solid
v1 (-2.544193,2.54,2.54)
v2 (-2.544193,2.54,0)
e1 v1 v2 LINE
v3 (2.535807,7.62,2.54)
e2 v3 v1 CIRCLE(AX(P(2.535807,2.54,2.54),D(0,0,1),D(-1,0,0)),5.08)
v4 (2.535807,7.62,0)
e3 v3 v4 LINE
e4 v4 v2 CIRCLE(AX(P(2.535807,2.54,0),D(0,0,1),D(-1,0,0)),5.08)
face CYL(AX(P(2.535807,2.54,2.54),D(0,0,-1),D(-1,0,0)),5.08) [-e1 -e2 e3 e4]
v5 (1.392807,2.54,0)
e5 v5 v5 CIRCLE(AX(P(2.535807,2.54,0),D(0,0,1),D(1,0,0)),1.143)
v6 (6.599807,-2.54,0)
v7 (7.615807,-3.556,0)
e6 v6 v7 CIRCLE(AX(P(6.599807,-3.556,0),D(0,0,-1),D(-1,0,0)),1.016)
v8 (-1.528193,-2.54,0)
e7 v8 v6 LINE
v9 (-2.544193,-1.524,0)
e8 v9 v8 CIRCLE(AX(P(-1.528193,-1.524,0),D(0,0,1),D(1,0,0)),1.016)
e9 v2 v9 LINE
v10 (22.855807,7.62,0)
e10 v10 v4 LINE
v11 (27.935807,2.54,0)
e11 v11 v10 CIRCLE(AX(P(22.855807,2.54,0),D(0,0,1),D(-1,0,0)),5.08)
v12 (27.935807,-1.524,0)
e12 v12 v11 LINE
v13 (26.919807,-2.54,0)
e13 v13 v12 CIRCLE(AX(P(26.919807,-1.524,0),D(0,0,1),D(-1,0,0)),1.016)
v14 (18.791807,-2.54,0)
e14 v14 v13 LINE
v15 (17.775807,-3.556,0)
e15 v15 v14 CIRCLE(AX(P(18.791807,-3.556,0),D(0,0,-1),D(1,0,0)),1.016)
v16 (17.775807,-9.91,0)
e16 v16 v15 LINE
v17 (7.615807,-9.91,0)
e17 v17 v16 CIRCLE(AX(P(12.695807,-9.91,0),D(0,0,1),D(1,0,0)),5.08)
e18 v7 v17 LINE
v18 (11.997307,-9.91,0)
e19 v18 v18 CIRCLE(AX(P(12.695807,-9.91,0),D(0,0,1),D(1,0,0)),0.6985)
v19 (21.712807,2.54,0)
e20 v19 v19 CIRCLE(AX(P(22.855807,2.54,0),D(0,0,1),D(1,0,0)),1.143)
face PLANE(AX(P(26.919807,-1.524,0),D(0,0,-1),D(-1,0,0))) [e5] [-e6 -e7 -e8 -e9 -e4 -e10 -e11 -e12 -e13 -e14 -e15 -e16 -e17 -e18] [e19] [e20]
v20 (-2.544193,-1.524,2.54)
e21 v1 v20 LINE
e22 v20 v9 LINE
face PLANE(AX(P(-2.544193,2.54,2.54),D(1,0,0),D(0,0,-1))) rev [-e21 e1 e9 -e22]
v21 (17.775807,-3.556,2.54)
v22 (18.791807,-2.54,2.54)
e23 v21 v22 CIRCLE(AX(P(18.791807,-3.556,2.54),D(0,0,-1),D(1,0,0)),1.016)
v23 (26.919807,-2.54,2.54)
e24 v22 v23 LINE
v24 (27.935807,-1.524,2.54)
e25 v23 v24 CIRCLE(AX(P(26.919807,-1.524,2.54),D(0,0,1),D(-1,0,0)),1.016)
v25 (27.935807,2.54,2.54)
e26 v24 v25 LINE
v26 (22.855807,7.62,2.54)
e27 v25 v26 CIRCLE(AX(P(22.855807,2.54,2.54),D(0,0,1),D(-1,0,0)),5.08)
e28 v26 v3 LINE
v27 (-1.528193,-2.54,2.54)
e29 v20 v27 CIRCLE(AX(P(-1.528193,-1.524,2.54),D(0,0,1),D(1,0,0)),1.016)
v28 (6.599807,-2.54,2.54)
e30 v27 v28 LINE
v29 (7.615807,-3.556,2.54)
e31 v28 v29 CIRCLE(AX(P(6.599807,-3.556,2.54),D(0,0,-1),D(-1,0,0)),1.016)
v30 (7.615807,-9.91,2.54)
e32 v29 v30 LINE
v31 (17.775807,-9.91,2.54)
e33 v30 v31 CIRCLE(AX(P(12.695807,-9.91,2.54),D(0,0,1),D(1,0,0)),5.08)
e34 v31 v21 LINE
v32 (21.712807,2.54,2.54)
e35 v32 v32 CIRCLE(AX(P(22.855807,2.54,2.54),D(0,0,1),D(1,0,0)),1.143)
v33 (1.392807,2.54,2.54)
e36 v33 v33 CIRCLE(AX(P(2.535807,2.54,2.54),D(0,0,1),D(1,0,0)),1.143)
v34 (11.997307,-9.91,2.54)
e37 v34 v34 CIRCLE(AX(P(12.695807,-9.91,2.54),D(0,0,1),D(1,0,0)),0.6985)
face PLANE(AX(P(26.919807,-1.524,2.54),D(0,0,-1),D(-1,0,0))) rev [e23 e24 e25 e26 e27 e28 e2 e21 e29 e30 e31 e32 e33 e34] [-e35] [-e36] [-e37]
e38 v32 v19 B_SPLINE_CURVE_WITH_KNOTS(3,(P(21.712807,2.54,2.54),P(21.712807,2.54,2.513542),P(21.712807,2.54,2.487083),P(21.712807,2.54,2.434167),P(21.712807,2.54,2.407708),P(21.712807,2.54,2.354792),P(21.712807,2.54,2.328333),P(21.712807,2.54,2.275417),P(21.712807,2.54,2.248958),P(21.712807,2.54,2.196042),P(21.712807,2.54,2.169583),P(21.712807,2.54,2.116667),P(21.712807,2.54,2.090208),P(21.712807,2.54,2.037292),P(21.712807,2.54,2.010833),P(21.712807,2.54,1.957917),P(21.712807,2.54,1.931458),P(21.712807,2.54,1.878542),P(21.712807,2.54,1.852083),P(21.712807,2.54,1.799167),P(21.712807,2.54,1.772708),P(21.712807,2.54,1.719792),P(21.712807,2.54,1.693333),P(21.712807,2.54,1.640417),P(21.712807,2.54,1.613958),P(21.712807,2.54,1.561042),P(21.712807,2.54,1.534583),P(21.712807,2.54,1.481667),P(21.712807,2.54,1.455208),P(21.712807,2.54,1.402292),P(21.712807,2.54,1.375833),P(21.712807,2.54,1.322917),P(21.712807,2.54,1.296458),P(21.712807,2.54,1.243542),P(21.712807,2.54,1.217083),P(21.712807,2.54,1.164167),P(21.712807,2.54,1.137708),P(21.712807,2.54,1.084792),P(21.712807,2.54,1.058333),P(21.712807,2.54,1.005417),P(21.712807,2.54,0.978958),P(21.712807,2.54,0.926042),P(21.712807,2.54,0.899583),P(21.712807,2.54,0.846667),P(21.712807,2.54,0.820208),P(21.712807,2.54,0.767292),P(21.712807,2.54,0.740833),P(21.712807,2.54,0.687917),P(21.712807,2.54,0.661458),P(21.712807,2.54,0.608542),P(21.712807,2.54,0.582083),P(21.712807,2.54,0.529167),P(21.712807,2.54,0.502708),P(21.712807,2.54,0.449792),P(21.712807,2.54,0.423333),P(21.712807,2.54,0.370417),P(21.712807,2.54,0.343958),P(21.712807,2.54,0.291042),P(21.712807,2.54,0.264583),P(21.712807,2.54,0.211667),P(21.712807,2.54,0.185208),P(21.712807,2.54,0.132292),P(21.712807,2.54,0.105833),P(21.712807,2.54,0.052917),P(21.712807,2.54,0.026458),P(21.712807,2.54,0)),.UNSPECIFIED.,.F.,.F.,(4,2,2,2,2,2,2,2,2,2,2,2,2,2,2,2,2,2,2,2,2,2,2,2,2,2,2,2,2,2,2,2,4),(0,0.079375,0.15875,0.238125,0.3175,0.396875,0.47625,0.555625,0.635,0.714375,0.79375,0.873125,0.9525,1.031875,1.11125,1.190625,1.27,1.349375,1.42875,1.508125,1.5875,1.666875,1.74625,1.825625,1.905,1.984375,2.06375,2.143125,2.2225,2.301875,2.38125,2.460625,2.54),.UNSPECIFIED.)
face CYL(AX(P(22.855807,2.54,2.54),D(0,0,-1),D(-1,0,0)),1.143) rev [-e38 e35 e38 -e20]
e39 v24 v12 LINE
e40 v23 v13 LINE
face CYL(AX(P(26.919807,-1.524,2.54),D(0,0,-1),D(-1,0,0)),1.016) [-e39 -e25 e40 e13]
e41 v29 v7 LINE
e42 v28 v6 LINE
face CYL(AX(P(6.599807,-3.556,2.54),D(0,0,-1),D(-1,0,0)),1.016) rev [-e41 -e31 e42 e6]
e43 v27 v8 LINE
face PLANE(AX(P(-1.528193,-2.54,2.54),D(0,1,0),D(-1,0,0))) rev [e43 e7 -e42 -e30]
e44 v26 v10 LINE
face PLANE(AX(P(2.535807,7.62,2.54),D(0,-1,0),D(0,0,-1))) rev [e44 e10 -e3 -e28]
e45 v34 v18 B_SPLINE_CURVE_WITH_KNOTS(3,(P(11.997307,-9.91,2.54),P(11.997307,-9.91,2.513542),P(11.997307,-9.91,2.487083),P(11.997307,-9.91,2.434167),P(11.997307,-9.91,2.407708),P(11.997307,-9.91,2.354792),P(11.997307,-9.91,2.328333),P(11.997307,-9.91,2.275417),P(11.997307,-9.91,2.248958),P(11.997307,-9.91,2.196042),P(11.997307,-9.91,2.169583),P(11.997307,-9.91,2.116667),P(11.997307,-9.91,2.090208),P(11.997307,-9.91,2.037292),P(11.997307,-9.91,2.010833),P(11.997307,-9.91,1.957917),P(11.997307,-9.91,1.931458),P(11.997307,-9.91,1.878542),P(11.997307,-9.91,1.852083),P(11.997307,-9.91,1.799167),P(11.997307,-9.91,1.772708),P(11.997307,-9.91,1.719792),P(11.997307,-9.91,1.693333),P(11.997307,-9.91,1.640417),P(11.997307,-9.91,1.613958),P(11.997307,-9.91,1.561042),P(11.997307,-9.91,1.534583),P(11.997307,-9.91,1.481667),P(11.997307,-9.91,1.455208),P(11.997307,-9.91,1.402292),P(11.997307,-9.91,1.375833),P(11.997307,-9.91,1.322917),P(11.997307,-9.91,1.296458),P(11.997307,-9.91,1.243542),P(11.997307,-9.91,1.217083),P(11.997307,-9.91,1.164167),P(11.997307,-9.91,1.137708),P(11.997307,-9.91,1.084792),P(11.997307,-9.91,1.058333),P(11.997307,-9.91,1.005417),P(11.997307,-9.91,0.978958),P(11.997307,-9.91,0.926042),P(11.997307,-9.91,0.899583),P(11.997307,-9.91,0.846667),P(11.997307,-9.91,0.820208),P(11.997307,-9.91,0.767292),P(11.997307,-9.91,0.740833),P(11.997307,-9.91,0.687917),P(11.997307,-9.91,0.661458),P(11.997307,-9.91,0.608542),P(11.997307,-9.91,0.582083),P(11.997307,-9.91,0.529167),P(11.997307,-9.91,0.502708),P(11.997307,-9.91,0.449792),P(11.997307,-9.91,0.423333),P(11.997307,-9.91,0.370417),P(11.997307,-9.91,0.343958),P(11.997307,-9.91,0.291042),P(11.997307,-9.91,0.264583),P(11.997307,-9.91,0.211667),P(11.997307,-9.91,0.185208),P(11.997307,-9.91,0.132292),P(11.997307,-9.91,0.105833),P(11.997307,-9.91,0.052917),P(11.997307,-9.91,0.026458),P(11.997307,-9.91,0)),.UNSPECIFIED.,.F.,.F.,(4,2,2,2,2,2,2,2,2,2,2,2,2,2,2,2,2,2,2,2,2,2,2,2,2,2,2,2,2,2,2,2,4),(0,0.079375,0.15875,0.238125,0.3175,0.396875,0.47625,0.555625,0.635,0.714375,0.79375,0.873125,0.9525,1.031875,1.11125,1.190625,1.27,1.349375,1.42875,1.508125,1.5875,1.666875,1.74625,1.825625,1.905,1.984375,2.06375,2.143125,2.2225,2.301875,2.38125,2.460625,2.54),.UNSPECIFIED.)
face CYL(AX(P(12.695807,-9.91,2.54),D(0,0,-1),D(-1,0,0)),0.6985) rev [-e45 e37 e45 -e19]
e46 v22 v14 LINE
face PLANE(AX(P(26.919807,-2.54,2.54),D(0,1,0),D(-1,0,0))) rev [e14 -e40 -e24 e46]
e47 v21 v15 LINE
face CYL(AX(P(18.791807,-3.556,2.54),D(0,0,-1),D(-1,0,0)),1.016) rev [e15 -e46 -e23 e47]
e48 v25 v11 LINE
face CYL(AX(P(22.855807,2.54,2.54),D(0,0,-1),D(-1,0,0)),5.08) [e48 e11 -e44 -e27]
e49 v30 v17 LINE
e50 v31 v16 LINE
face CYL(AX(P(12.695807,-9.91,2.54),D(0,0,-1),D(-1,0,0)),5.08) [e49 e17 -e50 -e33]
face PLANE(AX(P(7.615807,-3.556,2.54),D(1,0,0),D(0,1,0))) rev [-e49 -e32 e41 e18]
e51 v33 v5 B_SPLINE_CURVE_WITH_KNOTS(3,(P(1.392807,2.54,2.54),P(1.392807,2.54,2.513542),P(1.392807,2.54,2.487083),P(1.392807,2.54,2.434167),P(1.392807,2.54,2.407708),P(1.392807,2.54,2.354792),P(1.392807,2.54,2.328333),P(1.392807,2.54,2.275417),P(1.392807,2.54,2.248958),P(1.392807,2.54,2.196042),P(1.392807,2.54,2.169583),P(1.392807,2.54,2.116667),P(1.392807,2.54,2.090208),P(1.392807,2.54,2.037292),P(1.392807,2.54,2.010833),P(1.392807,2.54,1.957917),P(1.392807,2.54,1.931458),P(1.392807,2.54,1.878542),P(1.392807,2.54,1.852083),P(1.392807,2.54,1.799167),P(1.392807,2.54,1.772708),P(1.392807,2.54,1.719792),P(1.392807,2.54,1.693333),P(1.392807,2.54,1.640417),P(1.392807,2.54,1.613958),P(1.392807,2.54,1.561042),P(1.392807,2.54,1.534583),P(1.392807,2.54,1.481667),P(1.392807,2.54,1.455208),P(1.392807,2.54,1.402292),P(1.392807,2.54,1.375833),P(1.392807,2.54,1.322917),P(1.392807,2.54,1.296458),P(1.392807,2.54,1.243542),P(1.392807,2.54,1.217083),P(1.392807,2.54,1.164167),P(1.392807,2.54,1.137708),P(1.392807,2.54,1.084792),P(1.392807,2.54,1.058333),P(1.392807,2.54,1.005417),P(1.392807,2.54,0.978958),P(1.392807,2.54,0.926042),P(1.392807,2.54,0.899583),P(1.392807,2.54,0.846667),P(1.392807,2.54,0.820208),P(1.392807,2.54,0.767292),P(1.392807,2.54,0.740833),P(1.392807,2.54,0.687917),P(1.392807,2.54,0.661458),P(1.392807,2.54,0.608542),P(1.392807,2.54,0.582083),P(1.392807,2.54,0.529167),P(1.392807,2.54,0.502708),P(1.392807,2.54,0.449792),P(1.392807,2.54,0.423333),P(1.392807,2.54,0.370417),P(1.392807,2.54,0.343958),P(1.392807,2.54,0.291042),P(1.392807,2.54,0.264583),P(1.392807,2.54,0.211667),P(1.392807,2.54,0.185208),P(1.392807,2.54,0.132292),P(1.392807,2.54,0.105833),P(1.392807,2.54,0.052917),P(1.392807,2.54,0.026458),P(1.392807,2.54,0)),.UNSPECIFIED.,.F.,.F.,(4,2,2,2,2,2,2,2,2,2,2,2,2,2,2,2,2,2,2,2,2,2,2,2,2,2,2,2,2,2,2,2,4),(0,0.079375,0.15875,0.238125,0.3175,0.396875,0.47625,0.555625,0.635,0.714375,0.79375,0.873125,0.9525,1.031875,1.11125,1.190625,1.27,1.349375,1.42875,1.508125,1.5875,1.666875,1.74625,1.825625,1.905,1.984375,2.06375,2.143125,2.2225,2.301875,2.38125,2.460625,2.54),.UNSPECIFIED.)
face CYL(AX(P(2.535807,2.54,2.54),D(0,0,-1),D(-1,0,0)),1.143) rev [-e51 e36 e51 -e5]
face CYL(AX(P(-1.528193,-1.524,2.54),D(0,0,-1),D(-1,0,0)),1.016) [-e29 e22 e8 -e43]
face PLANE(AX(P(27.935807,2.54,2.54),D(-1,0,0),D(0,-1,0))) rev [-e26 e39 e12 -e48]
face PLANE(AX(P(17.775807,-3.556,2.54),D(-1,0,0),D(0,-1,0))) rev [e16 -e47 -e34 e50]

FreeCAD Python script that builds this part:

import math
import FreeCAD as App
import Part
import Sketcher

V = App.Vector
Q = App.Units.Quantity

doc = App.newDocument("Part")
body = doc.addObject("PartDesign::Body", "Body")

# Sketch on XY plane
sketch1 = doc.addObject("Sketcher::SketchObject", "Sketch")
body.addObject(sketch1)
sketch1.AttachmentSupport = (doc.XY_Plane, [""])
sketch1.MapMode = "FlatFace"
sketch1.addGeometry(Part.LineSegment(V(-2.5, 2.5, 0), V(-2.5, -1.5, 0)), False)
sketch1.addGeometry(Part.ArcOfCircle(Part.Circle(V(-1.5, -1.5, 0), V(0, 0, 1), 1), math.radians(180), math.radians(270)), False)
sketch1.addGeometry(Part.LineSegment(V(-1.5, -2.5, 0), V(6.6, -2.5, 0)), False)
sketch1.addGeometry(Part.ArcOfCircle(Part.Circle(V(6.6, -3.6, 0), V(0, 0, 1), 1), math.radians(0), math.radians(90)), False)
sketch1.addGeometry(Part.LineSegment(V(7.6, -3.6, 0), V(7.6, -9.9, 0)), False)
sketch1.addGeometry(Part.ArcOfCircle(Part.Circle(V(12.7, -9.9, 0), V(0, 0, 1), 5.1), math.radians(180), math.radians(360)), False)
sketch1.addGeometry(Part.LineSegment(V(17.8, -9.9, 0), V(17.8, -3.6, 0)), False)
sketch1.addGeometry(Part.ArcOfCircle(Part.Circle(V(18.8, -3.6, 0), V(0, 0, 1), 1), math.radians(90), math.radians(180)), False)
sketch1.addGeometry(Part.LineSegment(V(18.8, -2.5, 0), V(26.9, -2.5, 0)), False)
sketch1.addGeometry(Part.ArcOfCircle(Part.Circle(V(26.9, -1.5, 0), V(0, 0, 1), 1), math.radians(-90), math.radians(0)), False)
sketch1.addGeometry(Part.LineSegment(V(27.9, -1.5, 0), V(27.9, 2.5, 0)), False)
sketch1.addGeometry(Part.ArcOfCircle(Part.Circle(V(22.9, 2.5, 0), V(0, 0, 1), 5.1), math.radians(0), math.radians(90)), False)
sketch1.addGeometry(Part.LineSegment(V(22.9, 7.6, 0), V(2.5, 7.6, 0)), False)
sketch1.addGeometry(Part.ArcOfCircle(Part.Circle(V(2.5, 2.5, 0), V(0, 0, 1), 5.1), math.radians(90), math.radians(180)), False)
sketch1.addGeometry(Part.Circle(V(12.7, -9.9, 0), V(0, 0, 1), 0.7), False)
sketch1.addGeometry(Part.Circle(V(2.5, 2.5, 0), V(0, 0, 1), 1.1), False)
sketch1.addGeometry(Part.Circle(V(22.9, 2.5, 0), V(0, 0, 1), 1.1), False)
sketch1.addConstraint(Sketcher.Constraint("Tangent", 0, 2, 1, 1))
sketch1.addConstraint(Sketcher.Constraint("Tangent", 1, 2, 2, 1))
sketch1.addConstraint(Sketcher.Constraint("Tangent", 2, 2, 3, 2))
sketch1.addConstraint(Sketcher.Constraint("Tangent", 3, 1, 4, 1))
sketch1.addConstraint(Sketcher.Constraint("Tangent", 4, 2, 5, 1))
sketch1.addConstraint(Sketcher.Constraint("Tangent", 5, 2, 6, 1))
sketch1.addConstraint(Sketcher.Constraint("Tangent", 6, 2, 7, 2))
sketch1.addConstraint(Sketcher.Constraint("Tangent", 7, 1, 8, 1))
sketch1.addConstraint(Sketcher.Constraint("Tangent", 8, 2, 9, 1))
sketch1.addConstraint(Sketcher.Constraint("Tangent", 9, 2, 10, 1))
sketch1.addConstraint(Sketcher.Constraint("Tangent", 10, 2, 11, 1))
sketch1.addConstraint(Sketcher.Constraint("Tangent", 11, 2, 12, 1))
sketch1.addConstraint(Sketcher.Constraint("Tangent", 12, 2, 13, 1))
sketch1.addConstraint(Sketcher.Constraint("Tangent", 13, 2, 0, 1))
sketch1.addConstraint(Sketcher.Constraint("Vertical", 0))
sketch1.addConstraint(Sketcher.Constraint("Horizontal", 2))
sketch1.addConstraint(Sketcher.Constraint("Vertical", 4))
sketch1.addConstraint(Sketcher.Constraint("Vertical", 6))
sketch1.addConstraint(Sketcher.Constraint("Horizontal", 8))
sketch1.addConstraint(Sketcher.Constraint("Vertical", 10))
sketch1.addConstraint(Sketcher.Constraint("Horizontal", 12))
sketch1.addConstraint(Sketcher.Constraint("Coincident", 14, 3, 5, 3))
sketch1.addConstraint(Sketcher.Constraint("Coincident", 15, 3, 13, 3))
sketch1.addConstraint(Sketcher.Constraint("Coincident", 16, 3, 11, 3))
sketch1.addConstraint(Sketcher.Constraint("Equal", 1, 3))
sketch1.addConstraint(Sketcher.Constraint("Equal", 3, 7))
sketch1.addConstraint(Sketcher.Constraint("Equal", 7, 9))
sketch1.addConstraint(Sketcher.Constraint("Equal", 5, 11))
sketch1.addConstraint(Sketcher.Constraint("Equal", 11, 13))
sketch1.addConstraint(Sketcher.Constraint("Equal", 15, 16))
sketch1.addConstraint(Sketcher.Constraint("Horizontal", 3, 3, 7, 3))
sketch1.addConstraint(Sketcher.Constraint("Equal", 2, 8))
sketch1.addConstraint(Sketcher.Constraint("Radius", 5, Q("0.2 in")))
sketch1.addConstraint(Sketcher.Constraint("Diameter", 15, Q("0.09 in")))
sketch1.addConstraint(Sketcher.Constraint("Radius", 1, Q("0.04 in")))
sketch1.addConstraint(Sketcher.Constraint("Diameter", 14, Q("0.055 in")))
sketch1.addConstraint(Sketcher.Constraint("DistanceX", 12, 2, 12, 1, Q("0.8 in")))
sketch1.addConstraint(Sketcher.Constraint("DistanceY", 0, 2, 0, 1, Q("0.16 in")))
sketch1.addConstraint(Sketcher.Constraint("DistanceY", -1, 1, 11, 3, Q("0.1 in")))
sketch1.addConstraint(Sketcher.Constraint("DistanceY", 4, 2, 4, 1, 6.354))
sketch1.addConstraint(Sketcher.Constraint("DistanceX", 1, 3, -1, 1, 1.528193))
pad1 = doc.addObject("PartDesign::Pad", "Pad")
body.addObject(pad1)
pad1.Profile = sketch1
pad1.Length = Q("0.1 in")

doc.recompute()
